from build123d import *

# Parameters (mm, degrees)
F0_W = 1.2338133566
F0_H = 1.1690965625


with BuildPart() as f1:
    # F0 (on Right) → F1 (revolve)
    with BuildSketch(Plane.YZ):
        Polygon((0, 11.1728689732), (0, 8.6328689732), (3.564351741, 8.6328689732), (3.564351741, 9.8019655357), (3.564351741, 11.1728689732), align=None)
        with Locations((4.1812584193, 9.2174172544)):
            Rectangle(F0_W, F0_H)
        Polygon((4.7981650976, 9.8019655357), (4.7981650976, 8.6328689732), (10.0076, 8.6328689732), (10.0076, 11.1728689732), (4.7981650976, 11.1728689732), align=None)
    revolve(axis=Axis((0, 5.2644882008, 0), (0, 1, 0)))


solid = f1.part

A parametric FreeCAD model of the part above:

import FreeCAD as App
import Part
import Sketcher

V = App.Vector
Q = App.Units.Quantity

doc = App.newDocument("Part")
params = doc.addObject("Spreadsheet::Sheet", "Params")
for row, (alias, value) in enumerate([
    ("sketch1_height", "0.1 in"),
    ("revolution_angle", "360 deg"),
], start=1):
    params.set(f"A{row}", alias)
    params.set(f"B{row}", "=" + value)
    params.setAlias(f"B{row}", alias)

body = doc.addObject("PartDesign::Body", "Body")

# Sketch on YZ plane
sketch1 = doc.addObject("Sketcher::SketchObject", "Sketch")
body.addObject(sketch1)
sketch1.AttachmentSupport = (doc.YZ_Plane, [""])
sketch1.MapMode = "FlatFace"
sketch1.addGeometry(Part.LineSegment(V(0, 11.2, 0), V(0, 8.6, 0)), False)
sketch1.addGeometry(Part.LineSegment(V(0, 8.6, 0), V(3.6, 8.6, 0)), False)
sketch1.addGeometry(Part.LineSegment(V(3.6, 8.6, 0), V(4.8, 8.6, 0)), False)
sketch1.addGeometry(Part.LineSegment(V(4.8, 8.6, 0), V(10, 8.6, 0)), False)
sketch1.addGeometry(Part.LineSegment(V(10, 8.6, 0), V(10, 11.2, 0)), False)
sketch1.addGeometry(Part.LineSegment(V(10, 11.2, 0), V(4.8, 11.2, 0)), False)
sketch1.addGeometry(Part.LineSegment(V(4.8, 11.2, 0), V(4.8, 9.8, 0)), False)
sketch1.addGeometry(Part.LineSegment(V(4.8, 9.8, 0), V(3.6, 9.8, 0)), False)
sketch1.addGeometry(Part.LineSegment(V(3.6, 9.8, 0), V(3.6, 11.2, 0)), False)
sketch1.addGeometry(Part.LineSegment(V(3.6, 11.2, 0), V(0, 11.2, 0)), False)
sketch1.addConstraint(Sketcher.Constraint("Coincident", 0, 2, 1, 1))
sketch1.addConstraint(Sketcher.Constraint("Coincident", 1, 2, 2, 1))
sketch1.addConstraint(Sketcher.Constraint("Coincident", 2, 2, 3, 1))
sketch1.addConstraint(Sketcher.Constraint("Coincident", 3, 2, 4, 1))
sketch1.addConstraint(Sketcher.Constraint("Coincident", 4, 2, 5, 1))
sketch1.addConstraint(Sketcher.Constraint("Coincident", 5, 2, 6, 1))
sketch1.addConstraint(Sketcher.Constraint("Coincident", 6, 2, 7, 1))
sketch1.addConstraint(Sketcher.Constraint("Coincident", 7, 2, 8, 1))
sketch1.addConstraint(Sketcher.Constraint("Coincident", 8, 2, 9, 1))
sketch1.addConstraint(Sketcher.Constraint("Coincident", 9, 2, 0, 1))
sketch1.addConstraint(Sketcher.Constraint("Vertical", 0))
sketch1.addConstraint(Sketcher.Constraint("Horizontal", 1))
sketch1.addConstraint(Sketcher.Constraint("Horizontal", 2))
sketch1.addConstraint(Sketcher.Constraint("Horizontal", 3))
sketch1.addConstraint(Sketcher.Constraint("Vertical", 4))
sketch1.addConstraint(Sketcher.Constraint("Horizontal", 5))
sketch1.addConstraint(Sketcher.Constraint("Vertical", 6))
sketch1.addConstraint(Sketcher.Constraint("Horizontal", 7))
sketch1.addConstraint(Sketcher.Constraint("Vertical", 8))
sketch1.addConstraint(Sketcher.Constraint("Horizontal", 9))
sketch1.addConstraint(Sketcher.Constraint("PointOnObject", 0, 2, -2))
sketch1.addConstraint(Sketcher.Constraint("Horizontal", 5, 2, 8, 2))
sketch1.addConstraint(Sketcher.Constraint("Vertical", 2, 2, 5, 2))
sketch1.addConstraint(Sketcher.Constraint("Vertical", 1, 2, 7, 2))
sketch1.addConstraint(Sketcher.Constraint("DistanceY", 0, 2, 0, 1, Q("0.1 in")))
sketch1.addConstraint(Sketcher.Constraint("DistanceX", -1, 1, 3, 2, Q("0.394 in")))
sketch1.addConstraint(Sketcher.Constraint("DistanceX", 1, 1, 1, 2, 3.564352))
sketch1.addConstraint(Sketcher.Constraint("DistanceX", 2, 1, 2, 2, 1.233813))
sketch1.addConstraint(Sketcher.Constraint("DistanceY", 6, 2, 6, 1, 1.370903))
sketch1.addConstraint(Sketcher.Constraint("DistanceY", -1, 1, 0, 2, 8.632869))
sketch1.setExpression("Constraints[24]", "Params.sketch1_height")
revolution = doc.addObject("PartDesign::Revolution", "Revolution")
body.addObject(revolution)
revolution.Profile = sketch1
revolution.ReferenceAxis = (sketch1, ["H_Axis"])
revolution.setExpression("Angle", "Params.revolution_angle")

doc.recompute()
